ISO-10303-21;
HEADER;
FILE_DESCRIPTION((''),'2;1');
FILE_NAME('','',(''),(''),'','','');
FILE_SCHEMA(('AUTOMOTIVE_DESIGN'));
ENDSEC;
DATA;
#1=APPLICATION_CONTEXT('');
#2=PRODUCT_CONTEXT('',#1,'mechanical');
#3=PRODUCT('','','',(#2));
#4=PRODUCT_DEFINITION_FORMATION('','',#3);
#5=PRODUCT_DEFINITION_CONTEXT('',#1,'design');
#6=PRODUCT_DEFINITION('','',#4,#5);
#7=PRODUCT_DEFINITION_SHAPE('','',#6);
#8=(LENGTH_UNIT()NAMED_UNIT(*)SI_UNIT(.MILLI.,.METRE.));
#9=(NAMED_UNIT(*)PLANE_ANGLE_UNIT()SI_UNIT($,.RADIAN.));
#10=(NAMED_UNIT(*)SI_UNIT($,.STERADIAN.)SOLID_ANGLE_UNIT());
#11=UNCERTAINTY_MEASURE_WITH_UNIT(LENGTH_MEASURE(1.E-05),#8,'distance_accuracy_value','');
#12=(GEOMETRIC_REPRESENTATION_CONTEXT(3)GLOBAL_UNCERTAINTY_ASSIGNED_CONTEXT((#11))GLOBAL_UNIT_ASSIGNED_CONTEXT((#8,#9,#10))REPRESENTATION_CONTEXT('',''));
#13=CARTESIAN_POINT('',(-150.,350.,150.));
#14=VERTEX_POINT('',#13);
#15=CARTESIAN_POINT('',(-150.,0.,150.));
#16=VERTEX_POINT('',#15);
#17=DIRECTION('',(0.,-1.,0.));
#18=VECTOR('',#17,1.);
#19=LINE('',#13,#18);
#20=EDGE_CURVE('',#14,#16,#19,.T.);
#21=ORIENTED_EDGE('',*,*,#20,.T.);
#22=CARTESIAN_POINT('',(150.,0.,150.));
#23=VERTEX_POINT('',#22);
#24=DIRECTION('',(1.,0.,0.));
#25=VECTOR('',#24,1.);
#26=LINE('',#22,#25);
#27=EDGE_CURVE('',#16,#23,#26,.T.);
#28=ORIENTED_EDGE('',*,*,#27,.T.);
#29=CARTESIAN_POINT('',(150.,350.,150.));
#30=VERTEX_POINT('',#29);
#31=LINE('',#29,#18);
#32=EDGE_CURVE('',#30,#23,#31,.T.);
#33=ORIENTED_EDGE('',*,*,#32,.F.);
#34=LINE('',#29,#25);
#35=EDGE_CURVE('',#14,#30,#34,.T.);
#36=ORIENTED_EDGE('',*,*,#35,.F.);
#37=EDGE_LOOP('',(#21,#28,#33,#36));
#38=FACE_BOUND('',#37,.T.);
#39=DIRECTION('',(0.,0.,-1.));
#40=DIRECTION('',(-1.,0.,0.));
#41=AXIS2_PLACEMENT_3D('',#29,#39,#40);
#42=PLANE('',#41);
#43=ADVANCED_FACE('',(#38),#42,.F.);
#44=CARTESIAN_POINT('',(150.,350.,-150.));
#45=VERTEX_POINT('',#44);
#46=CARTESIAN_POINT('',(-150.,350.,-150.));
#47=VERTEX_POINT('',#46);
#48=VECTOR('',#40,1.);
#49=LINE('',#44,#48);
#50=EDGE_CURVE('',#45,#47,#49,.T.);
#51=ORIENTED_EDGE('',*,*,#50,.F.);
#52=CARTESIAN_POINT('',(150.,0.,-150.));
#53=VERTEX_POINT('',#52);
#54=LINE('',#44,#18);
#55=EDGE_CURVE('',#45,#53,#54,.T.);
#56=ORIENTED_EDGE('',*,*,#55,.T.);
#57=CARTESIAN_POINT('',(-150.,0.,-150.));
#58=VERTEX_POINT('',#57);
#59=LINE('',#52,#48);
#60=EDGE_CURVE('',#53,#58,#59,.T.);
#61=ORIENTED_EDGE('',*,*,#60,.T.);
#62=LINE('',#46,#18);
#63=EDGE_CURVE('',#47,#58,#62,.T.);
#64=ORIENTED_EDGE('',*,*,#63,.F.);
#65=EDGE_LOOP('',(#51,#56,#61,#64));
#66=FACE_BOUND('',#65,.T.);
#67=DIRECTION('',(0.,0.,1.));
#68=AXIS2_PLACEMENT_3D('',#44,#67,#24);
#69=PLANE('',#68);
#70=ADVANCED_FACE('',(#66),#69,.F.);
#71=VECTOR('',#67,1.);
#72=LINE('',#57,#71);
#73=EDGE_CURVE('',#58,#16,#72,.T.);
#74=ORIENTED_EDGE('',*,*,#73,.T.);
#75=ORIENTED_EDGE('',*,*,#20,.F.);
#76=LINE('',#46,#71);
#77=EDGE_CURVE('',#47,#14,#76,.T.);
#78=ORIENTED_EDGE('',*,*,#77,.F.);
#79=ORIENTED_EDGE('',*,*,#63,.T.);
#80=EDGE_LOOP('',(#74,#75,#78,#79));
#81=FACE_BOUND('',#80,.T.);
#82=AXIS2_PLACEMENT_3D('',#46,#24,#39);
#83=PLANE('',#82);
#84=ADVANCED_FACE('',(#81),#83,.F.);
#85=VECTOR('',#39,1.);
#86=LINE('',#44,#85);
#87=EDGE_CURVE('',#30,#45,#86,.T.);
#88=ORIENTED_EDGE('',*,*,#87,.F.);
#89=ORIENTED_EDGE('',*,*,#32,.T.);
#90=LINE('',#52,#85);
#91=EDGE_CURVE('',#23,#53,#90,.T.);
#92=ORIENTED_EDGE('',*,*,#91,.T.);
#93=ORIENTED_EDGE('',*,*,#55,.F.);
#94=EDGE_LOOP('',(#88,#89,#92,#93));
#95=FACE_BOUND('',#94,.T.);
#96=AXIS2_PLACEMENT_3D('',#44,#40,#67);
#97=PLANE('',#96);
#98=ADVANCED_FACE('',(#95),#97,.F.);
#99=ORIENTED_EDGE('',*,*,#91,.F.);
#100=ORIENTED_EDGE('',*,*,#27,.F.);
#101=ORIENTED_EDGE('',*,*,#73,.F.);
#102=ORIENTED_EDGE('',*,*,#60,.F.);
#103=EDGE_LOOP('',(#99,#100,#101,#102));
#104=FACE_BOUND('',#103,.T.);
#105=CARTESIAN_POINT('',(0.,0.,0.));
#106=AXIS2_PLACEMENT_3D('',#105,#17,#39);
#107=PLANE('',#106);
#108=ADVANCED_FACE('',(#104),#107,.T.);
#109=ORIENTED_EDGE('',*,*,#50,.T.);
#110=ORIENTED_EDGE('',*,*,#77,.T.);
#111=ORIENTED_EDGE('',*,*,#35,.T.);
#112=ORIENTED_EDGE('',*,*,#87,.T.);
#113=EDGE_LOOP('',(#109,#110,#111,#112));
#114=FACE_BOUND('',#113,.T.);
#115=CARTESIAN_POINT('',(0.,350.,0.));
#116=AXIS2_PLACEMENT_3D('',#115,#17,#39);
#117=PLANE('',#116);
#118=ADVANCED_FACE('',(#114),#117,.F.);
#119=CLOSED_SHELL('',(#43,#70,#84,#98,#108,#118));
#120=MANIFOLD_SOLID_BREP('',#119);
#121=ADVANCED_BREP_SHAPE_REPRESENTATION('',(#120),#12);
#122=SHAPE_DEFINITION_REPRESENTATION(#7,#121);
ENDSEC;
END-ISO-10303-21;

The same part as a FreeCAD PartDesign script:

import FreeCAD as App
import Part
import Sketcher

V = App.Vector
Q = App.Units.Quantity


def add_polygon(sketch, points):
    """Adds a closed chain of lines whose ends are joined by coincident constraints."""
    first, n = sketch.GeometryCount, len(points)
    for a, b in zip(points, points[1:] + points[:1]):
        sketch.addGeometry(Part.LineSegment(App.Vector(*a, 0), App.Vector(*b, 0)), False)
    for i in range(n):
        sketch.addConstraint(Sketcher.Constraint("Coincident", first + i, 2, first + (i + 1) % n, 1))

doc = App.newDocument("Part")
body = doc.addObject("PartDesign::Body", "Body")

# Sketch on XZ plane
sketch1 = body.newObject("Sketcher::SketchObject", "Sketch")
sketch1.AttachmentSupport = (doc.getObject("XZ_Plane"), [""])
sketch1.MapMode = "FlatFace"
add_polygon(sketch1, [(-150, -150), (-150, 150), (150, 150), (150, -150)])  # lines 0-3
sketch1.addConstraint([
    Sketcher.Constraint("Vertical", 0),
    Sketcher.Constraint("Horizontal", 1),
    Sketcher.Constraint("Vertical", 2),
    Sketcher.Constraint("Horizontal", 3),
    Sketcher.Constraint("Symmetric", 0, 2, 2, 2, -1, 1),
    Sketcher.Constraint("Equal", 3, 0),
    Sketcher.Constraint("DistanceX", 1, 1, 1, 2, Q("300 mm")),
])
pad1 = body.newObject("PartDesign::Pad", "Pad")
pad1.Profile = sketch1
pad1.Length = 350
pad1.Reversed = True

doc.recompute()
